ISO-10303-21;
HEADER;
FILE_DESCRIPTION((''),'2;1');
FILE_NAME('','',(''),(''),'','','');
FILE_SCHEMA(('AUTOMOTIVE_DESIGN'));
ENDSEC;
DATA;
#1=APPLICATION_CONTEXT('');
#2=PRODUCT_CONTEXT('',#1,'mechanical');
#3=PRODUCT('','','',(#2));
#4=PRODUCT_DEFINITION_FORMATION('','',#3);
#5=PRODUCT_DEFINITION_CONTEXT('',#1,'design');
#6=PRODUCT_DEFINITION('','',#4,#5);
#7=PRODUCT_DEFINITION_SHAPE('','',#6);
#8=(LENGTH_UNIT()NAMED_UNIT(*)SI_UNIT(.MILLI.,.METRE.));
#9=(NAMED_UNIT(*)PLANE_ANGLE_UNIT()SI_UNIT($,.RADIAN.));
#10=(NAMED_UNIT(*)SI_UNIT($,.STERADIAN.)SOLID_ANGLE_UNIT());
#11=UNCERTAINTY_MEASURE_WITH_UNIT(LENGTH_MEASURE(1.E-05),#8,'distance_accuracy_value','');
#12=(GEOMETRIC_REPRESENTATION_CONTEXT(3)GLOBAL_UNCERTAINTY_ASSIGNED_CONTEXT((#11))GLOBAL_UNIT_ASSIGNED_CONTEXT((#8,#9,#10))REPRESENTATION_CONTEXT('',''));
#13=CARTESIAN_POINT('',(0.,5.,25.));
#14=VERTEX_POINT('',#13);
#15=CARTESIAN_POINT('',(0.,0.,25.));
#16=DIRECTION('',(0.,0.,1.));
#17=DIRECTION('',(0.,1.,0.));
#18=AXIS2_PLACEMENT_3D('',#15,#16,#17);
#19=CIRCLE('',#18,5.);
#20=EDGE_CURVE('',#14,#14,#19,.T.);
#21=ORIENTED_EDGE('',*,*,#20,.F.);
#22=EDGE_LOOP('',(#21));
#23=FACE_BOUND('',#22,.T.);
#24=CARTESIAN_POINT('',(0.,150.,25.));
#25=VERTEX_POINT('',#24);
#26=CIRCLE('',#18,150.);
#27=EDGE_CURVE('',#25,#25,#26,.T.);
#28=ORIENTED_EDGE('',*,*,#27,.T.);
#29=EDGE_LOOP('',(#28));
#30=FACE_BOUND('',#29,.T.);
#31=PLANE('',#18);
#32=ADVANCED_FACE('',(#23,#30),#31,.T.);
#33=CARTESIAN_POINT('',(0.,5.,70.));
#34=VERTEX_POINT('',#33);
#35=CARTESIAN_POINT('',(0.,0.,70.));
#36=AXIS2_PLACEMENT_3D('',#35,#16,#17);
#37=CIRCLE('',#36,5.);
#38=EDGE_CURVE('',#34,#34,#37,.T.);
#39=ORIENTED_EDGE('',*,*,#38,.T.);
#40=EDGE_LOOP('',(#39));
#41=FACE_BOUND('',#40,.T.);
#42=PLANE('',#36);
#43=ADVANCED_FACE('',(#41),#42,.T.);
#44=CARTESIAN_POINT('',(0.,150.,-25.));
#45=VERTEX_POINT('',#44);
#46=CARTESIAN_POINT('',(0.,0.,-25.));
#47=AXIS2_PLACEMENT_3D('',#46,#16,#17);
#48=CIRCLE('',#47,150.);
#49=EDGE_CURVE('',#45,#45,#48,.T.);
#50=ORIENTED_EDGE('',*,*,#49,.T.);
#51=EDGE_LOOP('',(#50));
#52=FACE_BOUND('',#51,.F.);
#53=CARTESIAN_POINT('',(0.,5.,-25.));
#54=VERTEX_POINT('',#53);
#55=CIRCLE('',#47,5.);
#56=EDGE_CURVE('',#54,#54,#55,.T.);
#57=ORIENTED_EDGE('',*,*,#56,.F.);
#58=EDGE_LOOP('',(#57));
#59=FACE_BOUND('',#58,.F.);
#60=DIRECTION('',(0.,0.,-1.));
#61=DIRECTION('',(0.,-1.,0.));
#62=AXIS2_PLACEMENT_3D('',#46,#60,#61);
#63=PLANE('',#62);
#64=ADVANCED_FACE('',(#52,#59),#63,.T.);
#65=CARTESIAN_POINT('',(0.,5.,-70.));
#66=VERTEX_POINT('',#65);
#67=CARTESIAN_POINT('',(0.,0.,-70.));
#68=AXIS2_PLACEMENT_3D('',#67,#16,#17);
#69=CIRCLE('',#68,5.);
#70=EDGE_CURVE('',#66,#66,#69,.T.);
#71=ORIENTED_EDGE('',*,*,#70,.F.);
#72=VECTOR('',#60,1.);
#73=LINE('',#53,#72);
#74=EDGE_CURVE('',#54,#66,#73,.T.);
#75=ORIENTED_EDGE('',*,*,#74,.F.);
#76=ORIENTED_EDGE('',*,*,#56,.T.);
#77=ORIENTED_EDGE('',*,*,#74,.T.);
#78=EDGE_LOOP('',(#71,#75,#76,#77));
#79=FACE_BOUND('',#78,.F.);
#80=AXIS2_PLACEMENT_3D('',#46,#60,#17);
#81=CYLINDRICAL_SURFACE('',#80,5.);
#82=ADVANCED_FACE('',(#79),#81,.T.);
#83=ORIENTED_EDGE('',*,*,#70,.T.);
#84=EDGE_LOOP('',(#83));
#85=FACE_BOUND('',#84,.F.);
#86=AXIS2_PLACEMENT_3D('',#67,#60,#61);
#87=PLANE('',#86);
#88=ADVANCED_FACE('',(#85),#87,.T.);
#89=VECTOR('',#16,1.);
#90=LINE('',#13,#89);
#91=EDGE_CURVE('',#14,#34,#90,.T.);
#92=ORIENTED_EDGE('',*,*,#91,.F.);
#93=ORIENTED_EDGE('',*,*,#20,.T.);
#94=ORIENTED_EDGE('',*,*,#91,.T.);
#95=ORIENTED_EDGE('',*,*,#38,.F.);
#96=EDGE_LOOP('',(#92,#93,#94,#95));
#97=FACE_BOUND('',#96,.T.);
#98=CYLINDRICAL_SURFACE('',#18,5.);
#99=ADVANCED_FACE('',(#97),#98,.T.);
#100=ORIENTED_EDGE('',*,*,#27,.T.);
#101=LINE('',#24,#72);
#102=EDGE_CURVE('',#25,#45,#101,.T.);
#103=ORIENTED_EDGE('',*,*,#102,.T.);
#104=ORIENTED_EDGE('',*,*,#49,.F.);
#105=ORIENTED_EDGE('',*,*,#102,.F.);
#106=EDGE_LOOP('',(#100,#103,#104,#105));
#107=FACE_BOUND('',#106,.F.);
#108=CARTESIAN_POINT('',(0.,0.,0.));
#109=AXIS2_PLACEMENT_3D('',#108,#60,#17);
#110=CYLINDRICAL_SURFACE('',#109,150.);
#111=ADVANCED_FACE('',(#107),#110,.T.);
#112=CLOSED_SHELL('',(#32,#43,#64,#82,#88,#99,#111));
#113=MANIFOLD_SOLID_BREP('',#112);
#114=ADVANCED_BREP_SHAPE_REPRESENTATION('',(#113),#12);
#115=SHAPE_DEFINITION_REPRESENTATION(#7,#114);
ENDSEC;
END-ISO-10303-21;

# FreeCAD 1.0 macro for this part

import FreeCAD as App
import Part
import Sketcher

V = App.Vector


def add_polygon(sketch, points):
    """Adds a closed chain of lines whose ends are joined by coincident constraints."""
    first, n = sketch.GeometryCount, len(points)
    for a, b in zip(points, points[1:] + points[:1]):
        sketch.addGeometry(Part.LineSegment(App.Vector(*a, 0), App.Vector(*b, 0)), False)
    for i in range(n):
        sketch.addConstraint(Sketcher.Constraint("Coincident", first + i, 2, first + (i + 1) % n, 1))

doc = App.newDocument("Part")
body = doc.addObject("PartDesign::Body", "Body")

# Sketch on YZ plane
sketch1 = body.newObject("Sketcher::SketchObject", "Sketch")
sketch1.AttachmentSupport = (doc.getObject("YZ_Plane"), [""])
sketch1.MapMode = "FlatFace"
add_polygon(sketch1, [(150, 0), (150, 25), (5, 25), (5, 70), (0, 70), (0, 0)])  # lines 0-5
sketch1.addConstraint(Sketcher.Constraint("Vertical", 0))
sketch1.addConstraint(Sketcher.Constraint("Horizontal", 1))
sketch1.addConstraint(Sketcher.Constraint("Vertical", 2))
sketch1.addConstraint(Sketcher.Constraint("Horizontal", 3))
sketch1.addConstraint(Sketcher.Constraint("Vertical", 4))
sketch1.addConstraint(Sketcher.Constraint("Horizontal", 5))
sketch1.addConstraint(Sketcher.Constraint("Coincident", 4, 2, -1, 1))
sketch1.addConstraint(Sketcher.Constraint("DistanceX", 1, 2, 1, 1, 145.0))
sketch1.addConstraint(Sketcher.Constraint("DistanceX", 3, 2, 3, 1, 5.0))
sketch1.addConstraint(Sketcher.Constraint("DistanceY", 0, 1, 0, 2, 25.0))
sketch1.addConstraint(Sketcher.Constraint("DistanceY", 2, 1, 2, 2, 45.0))
revolution = body.newObject("PartDesign::Revolution", "Revolution")
revolution.Profile = sketch1
revolution.ReferenceAxis = (sketch1, ["V_Axis"])
revolution.Angle = 360
doc.recompute()

mirrored = body.newObject("PartDesign::Mirrored", "Mirrored")
mirrored.Originals = [revolution]
mirrored.MirrorPlane = (doc.getObject("XY_Plane"), [""])
body.Tip = mirrored

doc.recompute()
